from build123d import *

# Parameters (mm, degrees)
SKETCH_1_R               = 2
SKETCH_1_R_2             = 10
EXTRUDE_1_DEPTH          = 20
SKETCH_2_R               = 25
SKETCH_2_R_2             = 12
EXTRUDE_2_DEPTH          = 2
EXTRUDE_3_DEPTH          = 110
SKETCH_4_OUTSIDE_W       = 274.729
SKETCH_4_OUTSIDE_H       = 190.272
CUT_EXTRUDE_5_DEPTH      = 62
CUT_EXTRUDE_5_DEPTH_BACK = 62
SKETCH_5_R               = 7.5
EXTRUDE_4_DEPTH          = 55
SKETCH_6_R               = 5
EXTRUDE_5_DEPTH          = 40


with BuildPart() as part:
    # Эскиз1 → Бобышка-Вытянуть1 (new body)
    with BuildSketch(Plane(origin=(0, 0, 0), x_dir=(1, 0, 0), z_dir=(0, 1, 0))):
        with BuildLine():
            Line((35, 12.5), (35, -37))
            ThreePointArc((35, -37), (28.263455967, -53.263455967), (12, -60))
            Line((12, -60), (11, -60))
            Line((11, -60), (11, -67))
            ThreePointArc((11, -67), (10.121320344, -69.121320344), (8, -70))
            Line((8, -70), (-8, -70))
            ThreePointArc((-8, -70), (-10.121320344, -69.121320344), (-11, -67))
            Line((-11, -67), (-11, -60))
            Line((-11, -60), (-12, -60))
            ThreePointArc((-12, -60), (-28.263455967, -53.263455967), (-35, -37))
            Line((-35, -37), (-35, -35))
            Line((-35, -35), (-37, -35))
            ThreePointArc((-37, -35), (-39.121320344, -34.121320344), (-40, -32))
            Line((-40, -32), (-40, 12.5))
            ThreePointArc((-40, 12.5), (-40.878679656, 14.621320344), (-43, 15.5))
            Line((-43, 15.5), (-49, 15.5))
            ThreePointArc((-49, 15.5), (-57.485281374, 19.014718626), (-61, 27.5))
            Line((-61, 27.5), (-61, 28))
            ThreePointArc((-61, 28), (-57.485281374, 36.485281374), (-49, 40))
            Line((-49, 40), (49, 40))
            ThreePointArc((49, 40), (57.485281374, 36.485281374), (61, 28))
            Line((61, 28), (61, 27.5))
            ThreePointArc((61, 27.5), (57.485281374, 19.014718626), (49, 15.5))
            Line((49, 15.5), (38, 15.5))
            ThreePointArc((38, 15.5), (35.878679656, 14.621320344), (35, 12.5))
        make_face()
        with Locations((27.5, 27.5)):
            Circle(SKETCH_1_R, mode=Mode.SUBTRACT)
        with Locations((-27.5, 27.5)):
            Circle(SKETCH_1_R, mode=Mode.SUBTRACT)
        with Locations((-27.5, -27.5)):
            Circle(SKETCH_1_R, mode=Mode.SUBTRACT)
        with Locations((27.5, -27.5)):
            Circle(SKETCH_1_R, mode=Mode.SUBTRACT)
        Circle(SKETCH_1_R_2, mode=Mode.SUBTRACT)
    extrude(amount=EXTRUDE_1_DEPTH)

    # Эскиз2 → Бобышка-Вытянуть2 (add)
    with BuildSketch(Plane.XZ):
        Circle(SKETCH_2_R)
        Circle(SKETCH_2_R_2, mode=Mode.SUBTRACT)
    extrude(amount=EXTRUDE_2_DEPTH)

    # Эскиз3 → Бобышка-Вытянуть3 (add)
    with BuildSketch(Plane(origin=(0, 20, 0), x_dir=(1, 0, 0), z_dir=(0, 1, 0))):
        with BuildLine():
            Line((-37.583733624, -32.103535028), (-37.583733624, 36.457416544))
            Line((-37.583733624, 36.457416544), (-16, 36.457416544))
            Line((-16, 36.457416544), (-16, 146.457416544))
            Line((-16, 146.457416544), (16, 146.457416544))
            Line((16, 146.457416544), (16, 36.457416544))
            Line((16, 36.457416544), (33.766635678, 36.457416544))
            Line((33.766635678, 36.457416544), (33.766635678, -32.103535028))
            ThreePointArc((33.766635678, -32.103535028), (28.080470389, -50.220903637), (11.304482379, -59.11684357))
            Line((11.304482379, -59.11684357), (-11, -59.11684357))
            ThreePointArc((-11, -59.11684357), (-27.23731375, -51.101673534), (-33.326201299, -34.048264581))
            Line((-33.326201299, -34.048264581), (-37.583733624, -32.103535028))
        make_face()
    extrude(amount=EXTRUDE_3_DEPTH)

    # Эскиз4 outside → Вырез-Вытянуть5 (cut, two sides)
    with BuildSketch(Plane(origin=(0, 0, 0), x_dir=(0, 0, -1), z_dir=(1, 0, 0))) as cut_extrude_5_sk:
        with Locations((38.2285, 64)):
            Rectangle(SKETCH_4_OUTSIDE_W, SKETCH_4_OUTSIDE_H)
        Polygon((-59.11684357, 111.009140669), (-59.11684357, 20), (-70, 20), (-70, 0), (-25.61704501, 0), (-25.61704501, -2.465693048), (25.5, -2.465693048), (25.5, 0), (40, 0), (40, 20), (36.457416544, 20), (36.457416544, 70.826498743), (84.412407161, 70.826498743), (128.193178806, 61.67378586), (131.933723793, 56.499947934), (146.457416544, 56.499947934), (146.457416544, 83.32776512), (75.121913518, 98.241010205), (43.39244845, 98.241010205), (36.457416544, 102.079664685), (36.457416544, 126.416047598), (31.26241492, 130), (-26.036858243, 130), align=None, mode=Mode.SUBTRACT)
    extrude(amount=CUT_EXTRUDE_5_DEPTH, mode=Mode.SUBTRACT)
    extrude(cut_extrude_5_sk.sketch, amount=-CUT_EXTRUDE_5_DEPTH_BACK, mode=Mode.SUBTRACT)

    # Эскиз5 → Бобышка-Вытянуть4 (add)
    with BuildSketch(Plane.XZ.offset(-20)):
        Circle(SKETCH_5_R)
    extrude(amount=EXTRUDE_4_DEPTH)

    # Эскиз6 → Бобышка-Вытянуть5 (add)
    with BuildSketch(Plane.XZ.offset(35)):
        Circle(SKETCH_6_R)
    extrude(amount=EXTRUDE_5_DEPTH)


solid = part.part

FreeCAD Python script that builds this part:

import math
import FreeCAD as App
import Part
import Sketcher
from FreeCAD import Vector
Q = App.Units.Quantity

doc = App.newDocument("Part")
params = doc.addObject("Spreadsheet::Sheet", "Params")
for row, (alias, value) in enumerate([
    ("sketch1_diameter", "4 mm"),
    ("sketch1_diameter2", "20 mm"),
    ("sketch1_radius", "3 mm"),
    ("sketch1_radius2", "12 mm"),
    ("sketch1_radius3", "23 mm"),
    ("pad1_length", "20 mm"),
    ("sketch2_diameter", "50 mm"),
    ("sketch2_diameter2", "24 mm"),
    ("pad2_length", "2 mm"),
    ("sketch3_radius", "25 mm"),
    ("sketch3_width", "32 mm"),
    ("sketch3_height", "110 mm"),
    ("pad3_length", "110 mm"),
    ("sketch4_width", "20 mm"),
    ("sketch4_height", "14.5 mm"),
    ("sketch5_diameter", "15 mm"),
    ("pad4_length", "55 mm"),
    ("sketch6_diameter", "10 mm"),
    ("pad5_length", "40 mm"),
], start=1):
    params.set(f"A{row}", alias)
    params.set(f"B{row}", "=" + value)
    params.setAlias(f"B{row}", alias)

body = doc.addObject("PartDesign::Body", "Body")

sketch1 = doc.addObject("Sketcher::SketchObject", "Sketch")
body.addObject(sketch1)
sketch1.AttachmentSupport = (doc.XZ_Plane, [""])
sketch1.MapMode = "FlatFace"
sketch1.addGeometry([
    Part.LineSegment(Vector(35, 37, 0), Vector(35, -12.5, 0)),
    Part.ArcOfCircle(Part.Circle(Vector(38, -12.5, 0), Vector(0, 0, 1), 3), math.radians(180), math.radians(270)),
    Part.LineSegment(Vector(38, -15.5, 0), Vector(49, -15.5, 0)),
    Part.ArcOfCircle(Part.Circle(Vector(49, -27.5, 0), Vector(0, 0, 1), 12), math.radians(0), math.radians(90)),
    Part.LineSegment(Vector(61, -27.5, 0), Vector(61, -28, 0)),
    Part.ArcOfCircle(Part.Circle(Vector(49, -28, 0), Vector(0, 0, 1), 12), math.radians(-90), math.radians(0)),
    Part.LineSegment(Vector(49, -40, 0), Vector(-49, -40, 0)),
    Part.ArcOfCircle(Part.Circle(Vector(-49, -28, 0), Vector(0, 0, 1), 12), math.radians(-180), math.radians(-90)),
    Part.LineSegment(Vector(-61, -28, 0), Vector(-61, -27.5, 0)),
    Part.ArcOfCircle(Part.Circle(Vector(-49, -27.5, 0), Vector(0, 0, 1), 12), math.radians(90), math.radians(180)),
    Part.LineSegment(Vector(-49, -15.5, 0), Vector(-43, -15.5, 0)),
    Part.ArcOfCircle(Part.Circle(Vector(-43, -12.5, 0), Vector(0, 0, 1), 3), math.radians(-90), math.radians(0)),
    Part.LineSegment(Vector(-40, -12.5, 0), Vector(-40, 32, 0)),
    Part.ArcOfCircle(Part.Circle(Vector(-37, 32, 0), Vector(0, 0, 1), 3), math.radians(90), math.radians(180)),
    Part.LineSegment(Vector(-37, 35, 0), Vector(-35, 35, 0)),
    Part.LineSegment(Vector(-35, 35, 0), Vector(-35, 37, 0)),
    Part.ArcOfCircle(Part.Circle(Vector(-12, 37, 0), Vector(0, 0, 1), 23), math.radians(90), math.radians(180)),
    Part.LineSegment(Vector(-12, 60, 0), Vector(-11, 60, 0)),
    Part.LineSegment(Vector(-11, 60, 0), Vector(-11, 67, 0)),
    Part.ArcOfCircle(Part.Circle(Vector(-8, 67, 0), Vector(0, 0, 1), 3), math.radians(90), math.radians(180)),
    Part.LineSegment(Vector(-8, 70, 0), Vector(8, 70, 0)),
    Part.ArcOfCircle(Part.Circle(Vector(8, 67, 0), Vector(0, 0, 1), 3), math.radians(0), math.radians(90)),
    Part.LineSegment(Vector(11, 67, 0), Vector(11, 60, 0)),
    Part.LineSegment(Vector(11, 60, 0), Vector(12, 60, 0)),
    Part.ArcOfCircle(Part.Circle(Vector(12, 37, 0), Vector(0, 0, 1), 23), math.radians(0), math.radians(90)),
    Part.Circle(Vector(27.5, 27.5, 0), Vector(0, 0, 1), 2),
    Part.Circle(Vector(-27.5, 27.5, 0), Vector(0, 0, 1), 2),
    Part.Circle(Vector(27.5, -27.5, 0), Vector(0, 0, 1), 2),
    Part.Circle(Vector(0, 0, 0), Vector(0, 0, 1), 10),
    Part.Circle(Vector(-27.5, -27.5, 0), Vector(0, 0, 1), 2),
], False)
sketch1.addConstraint([
    Sketcher.Constraint("Tangent", 0, 2, 1, 1),
    Sketcher.Constraint("Tangent", 1, 2, 2, 1),
    Sketcher.Constraint("Tangent", 2, 2, 3, 2),
    Sketcher.Constraint("Tangent", 3, 1, 4, 1),
    Sketcher.Constraint("Tangent", 4, 2, 5, 2),
    Sketcher.Constraint("Tangent", 5, 1, 6, 1),
    Sketcher.Constraint("Tangent", 6, 2, 7, 2),
    Sketcher.Constraint("Tangent", 7, 1, 8, 1),
    Sketcher.Constraint("Tangent", 8, 2, 9, 2),
    Sketcher.Constraint("Tangent", 9, 1, 10, 1),
    Sketcher.Constraint("Tangent", 10, 2, 11, 1),
    Sketcher.Constraint("Tangent", 11, 2, 12, 1),
    Sketcher.Constraint("Tangent", 12, 2, 13, 2),
    Sketcher.Constraint("Tangent", 13, 1, 14, 1),
    Sketcher.Constraint("Coincident", 14, 2, 15, 1),
    Sketcher.Constraint("Tangent", 15, 2, 16, 2),
    Sketcher.Constraint("Tangent", 16, 1, 17, 1),
    Sketcher.Constraint("Coincident", 17, 2, 18, 1),
    Sketcher.Constraint("Tangent", 18, 2, 19, 2),
    Sketcher.Constraint("Tangent", 19, 1, 20, 1),
    Sketcher.Constraint("Tangent", 20, 2, 21, 2),
    Sketcher.Constraint("Tangent", 21, 1, 22, 1),
    Sketcher.Constraint("Coincident", 22, 2, 23, 1),
    Sketcher.Constraint("Tangent", 23, 2, 24, 2),
    Sketcher.Constraint("Tangent", 24, 1, 0, 1),
    Sketcher.Constraint("Vertical", 0),
    Sketcher.Constraint("Horizontal", 2),
    Sketcher.Constraint("Vertical", 4),
    Sketcher.Constraint("Horizontal", 6),
    Sketcher.Constraint("Vertical", 8),
    Sketcher.Constraint("Horizontal", 10),
    Sketcher.Constraint("Vertical", 12),
    Sketcher.Constraint("Horizontal", 14),
    Sketcher.Constraint("Vertical", 15),
    Sketcher.Constraint("Horizontal", 17),
    Sketcher.Constraint("Vertical", 18),
    Sketcher.Constraint("Horizontal", 20),
    Sketcher.Constraint("Vertical", 22),
    Sketcher.Constraint("Horizontal", 23),
    Sketcher.Constraint("Coincident", 28, 3, -1, 1),
    Sketcher.Constraint("Equal", 3, 5),
    Sketcher.Constraint("Equal", 5, 7),
    Sketcher.Constraint("Equal", 7, 9),
    Sketcher.Constraint("Equal", 1, 11),
    Sketcher.Constraint("Equal", 11, 13),
    Sketcher.Constraint("Equal", 13, 19),
    Sketcher.Constraint("Equal", 19, 21),
    Sketcher.Constraint("Equal", 16, 24),
    Sketcher.Constraint("Equal", 25, 26),
    Sketcher.Constraint("Equal", 26, 27),
    Sketcher.Constraint("Equal", 27, 29),
    Sketcher.Constraint("Symmetric", 26, 3, 27, 3, -1, 1),
    Sketcher.Constraint("Symmetric", 25, 3, 29, 3, -1, 1),
    Sketcher.Constraint("Symmetric", 3, 3, 9, 3, -2),
    Sketcher.Constraint("Symmetric", 16, 3, 24, 3, -2),
    Sketcher.Constraint("Symmetric", 25, 3, 26, 3, -2),
    Sketcher.Constraint("Horizontal", 9, 3, 27, 3),
    Sketcher.Constraint("Equal", 17, 23),
    Sketcher.Constraint("Equal", 14, 15),
    Sketcher.Constraint("Diameter", 25, Q("4 mm")),
    Sketcher.Constraint("Diameter", 28, Q("20 mm")),
    Sketcher.Constraint("Radius", 1, Q("3 mm")),
    Sketcher.Constraint("Radius", 3, Q("12 mm")),
    Sketcher.Constraint("Radius", 16, Q("23 mm")),
    Sketcher.Constraint("DistanceX", 2, 1, 2, 2, Q("11 mm")),
    Sketcher.Constraint("DistanceX", 6, 2, 6, 1, Q("98 mm")),
    Sketcher.Constraint("DistanceX", 10, 1, 10, 2, Q("6 mm")),
    Sketcher.Constraint("DistanceX", 17, 1, 17, 2, Q("1 mm")),
    Sketcher.Constraint("DistanceY", 18, 1, 18, 2, Q("7 mm")),
    Sketcher.Constraint("DistanceY", 0, 2, 0, 1, Q("49.5 mm")),
    Sketcher.Constraint("DistanceY", 4, 2, 4, 1, Q("0.5 mm")),
    Sketcher.Constraint("DistanceY", 5, 3, -1, 1, Q("28 mm")),
    Sketcher.Constraint("DistanceX", -1, 1, 25, 3, Q("27.5 mm")),
])
sketch1.setExpression("Constraints[59]", "Params.sketch1_diameter")
sketch1.setExpression("Constraints[60]", "Params.sketch1_diameter2")
sketch1.setExpression("Constraints[61]", "Params.sketch1_radius")
sketch1.setExpression("Constraints[62]", "Params.sketch1_radius2")
sketch1.setExpression("Constraints[63]", "Params.sketch1_radius3")
pad1 = doc.addObject("PartDesign::Pad", "Pad")
body.addObject(pad1)
pad1.Profile = sketch1
pad1.setExpression("Length", "Params.pad1_length")
pad1.Reversed = True

sketch2 = doc.addObject("Sketcher::SketchObject", "Sketch001")
body.addObject(sketch2)
sketch2.AttachmentSupport = (doc.XZ_Plane, [""])
sketch2.MapMode = "FlatFace"
sketch2.addGeometry([
    Part.Circle(Vector(0, 0, 0), Vector(0, 0, 1), 25),
    Part.Circle(Vector(0, 0, 0), Vector(0, 0, 1), 12),
], False)
sketch2.addConstraint([
    Sketcher.Constraint("Coincident", 0, 3, -1, 1),
    Sketcher.Constraint("Coincident", 1, 3, -1, 1),
    Sketcher.Constraint("Diameter", 0, Q("50 mm")),
    Sketcher.Constraint("Diameter", 1, Q("24 mm")),
])
sketch2.setExpression("Constraints[2]", "Params.sketch2_diameter")
sketch2.setExpression("Constraints[3]", "Params.sketch2_diameter2")
pad2 = doc.addObject("PartDesign::Pad", "Pad001")
body.addObject(pad2)
pad2.Profile = sketch2
pad2.setExpression("Length", "Params.pad2_length")

sketch3 = doc.addObject("Sketcher::SketchObject", "Sketch002")
body.addObject(sketch3)
sketch3.AttachmentSupport = (doc.XZ_Plane, [""])
sketch3.MapMode = "FlatFace"
sketch3.AttachmentOffset = App.Placement(Vector(0, 0, -20), App.Rotation())
sketch3.addGeometry([
    Part.LineSegment(Vector(-37.6, -36.5, 0), Vector(-37.6, 32.1, 0)),
    Part.LineSegment(Vector(-37.6, 32.1, 0), Vector(-33.3, 34, 0)),
    Part.ArcOfCircle(Part.Circle(Vector(-9.2, 35.1, 0), Vector(0, 0, 1), 24.1), math.radians(94), math.radians(182)),
    Part.LineSegment(Vector(-11, 59.1, 0), Vector(11.3, 59.1, 0)),
    Part.ArcOfCircle(Part.Circle(Vector(8.9, 34.2, 0), Vector(0, 0, 1), 25), math.radians(-5), math.radians(84)),
    Part.LineSegment(Vector(33.8, 32.1, 0), Vector(33.8, -36.5, 0)),
    Part.LineSegment(Vector(33.8, -36.5, 0), Vector(16, -36.5, 0)),
    Part.LineSegment(Vector(16, -36.5, 0), Vector(16, -146.5, 0)),
    Part.LineSegment(Vector(16, -146.5, 0), Vector(-16, -146.5, 0)),
    Part.LineSegment(Vector(-16, -146.5, 0), Vector(-16, -36.5, 0)),
    Part.LineSegment(Vector(-16, -36.5, 0), Vector(-37.6, -36.5, 0)),
], False)
sketch3.addConstraint([
    Sketcher.Constraint("Coincident", 0, 2, 1, 1),
    Sketcher.Constraint("Coincident", 1, 2, 2, 2),
    Sketcher.Constraint("Coincident", 2, 1, 3, 1),
    Sketcher.Constraint("Coincident", 3, 2, 4, 2),
    Sketcher.Constraint("Coincident", 4, 1, 5, 1),
    Sketcher.Constraint("Coincident", 5, 2, 6, 1),
    Sketcher.Constraint("Coincident", 6, 2, 7, 1),
    Sketcher.Constraint("Coincident", 7, 2, 8, 1),
    Sketcher.Constraint("Coincident", 8, 2, 9, 1),
    Sketcher.Constraint("Coincident", 9, 2, 10, 1),
    Sketcher.Constraint("Coincident", 10, 2, 0, 1),
    Sketcher.Constraint("Vertical", 0),
    Sketcher.Constraint("Horizontal", 3),
    Sketcher.Constraint("Vertical", 5),
    Sketcher.Constraint("Horizontal", 6),
    Sketcher.Constraint("Vertical", 7),
    Sketcher.Constraint("Horizontal", 8),
    Sketcher.Constraint("Vertical", 9),
    Sketcher.Constraint("Horizontal", 10),
    Sketcher.Constraint("Symmetric", 6, 2, 9, 2, -2),
    Sketcher.Constraint("Horizontal", 0, 2, 4, 1),
    Sketcher.Constraint("Radius", 4, Q("25 mm")),
    Sketcher.Constraint("DistanceX", 8, 2, 8, 1, Q("32 mm")),
    Sketcher.Constraint("DistanceY", 7, 2, 7, 1, Q("110 mm")),
    Sketcher.Constraint("DistanceX", 2, 1, -1, 1, Q("11 mm")),
    Sketcher.Constraint("Radius", 2, Q("24.128051 mm")),
    Sketcher.Constraint("DistanceY", 0, 1, 0, 2, Q("68.560952 mm")),
    Sketcher.Constraint("DistanceX", 1, 2, -1, 1, Q("33.326201 mm")),
    Sketcher.Constraint("DistanceX", 3, 1, 3, 2, Q("22.304482 mm")),
    Sketcher.Constraint("DistanceX", 6, 2, 6, 1, Q("17.766636 mm")),
    Sketcher.Constraint("DistanceX", 10, 2, 10, 1, Q("21.583734 mm")),
    Sketcher.Constraint("DistanceX", 2, 3, 4, 3, Q("18.076968 mm")),
    Sketcher.Constraint("DistanceY", 4, 3, 2, 3, Q("0.817749 mm")),
    Sketcher.Constraint("DistanceY", -1, 1, 2, 3, Q("35.054603 mm")),
])
sketch3.setExpression("Constraints[21]", "Params.sketch3_radius")
sketch3.setExpression("Constraints[22]", "Params.sketch3_width")
sketch3.setExpression("Constraints[23]", "Params.sketch3_height")
pad3 = doc.addObject("PartDesign::Pad", "Pad002")
body.addObject(pad3)
pad3.Profile = sketch3
pad3.setExpression("Length", "Params.pad3_length")
pad3.Reversed = True

sketch4 = doc.addObject("Sketcher::SketchObject", "Sketch003")
body.addObject(sketch4)
sketch4.AttachmentSupport = (doc.YZ_Plane, [""])
sketch4.MapMode = "FlatFace"
sketch4.addGeometry([
    Part.LineSegment(Vector(159.1, 99.1, 0), Vector(-31.1, 99.1, 0)),
    Part.LineSegment(Vector(-31.1, 99.1, 0), Vector(-31.1, -175.6, 0)),
    Part.LineSegment(Vector(-31.1, -175.6, 0), Vector(159.1, -175.6, 0)),
    Part.LineSegment(Vector(159.1, -175.6, 0), Vector(159.1, 99.1, 0)),
    Part.LineSegment(Vector(20, 59.1, 0), Vector(111, 59.1, 0)),
    Part.LineSegment(Vector(111, 59.1, 0), Vector(130, 26, 0)),
    Part.LineSegment(Vector(130, 26, 0), Vector(130, -31.3, 0)),
    Part.LineSegment(Vector(130, -31.3, 0), Vector(126.4, -36.5, 0)),
    Part.LineSegment(Vector(126.4, -36.5, 0), Vector(102.1, -36.5, 0)),
    Part.LineSegment(Vector(102.1, -36.5, 0), Vector(98.2, -43.4, 0)),
    Part.LineSegment(Vector(98.2, -43.4, 0), Vector(98.2, -75.1, 0)),
    Part.LineSegment(Vector(98.2, -75.1, 0), Vector(83.3, -146.5, 0)),
    Part.LineSegment(Vector(83.3, -146.5, 0), Vector(56.5, -146.5, 0)),
    Part.LineSegment(Vector(56.5, -146.5, 0), Vector(56.5, -131.9, 0)),
    Part.LineSegment(Vector(56.5, -131.9, 0), Vector(61.7, -128.2, 0)),
    Part.LineSegment(Vector(61.7, -128.2, 0), Vector(70.8, -84.4, 0)),
    Part.LineSegment(Vector(70.8, -84.4, 0), Vector(70.8, -36.5, 0)),
    Part.LineSegment(Vector(70.8, -36.5, 0), Vector(20, -36.5, 0)),
    Part.LineSegment(Vector(20, -36.5, 0), Vector(20, -40, 0)),
    Part.LineSegment(Vector(20, -40, 0), Vector(0, -40, 0)),
    Part.LineSegment(Vector(0, -40, 0), Vector(0, -25.5, 0)),
    Part.LineSegment(Vector(0, -25.5, 0), Vector(-2.5, -25.5, 0)),
    Part.LineSegment(Vector(-2.5, -25.5, 0), Vector(-2.5, 25.6, 0)),
    Part.LineSegment(Vector(-2.5, 25.6, 0), Vector(0, 25.6, 0)),
    Part.LineSegment(Vector(0, 25.6, 0), Vector(0, 70, 0)),
    Part.LineSegment(Vector(0, 70, 0), Vector(20, 70, 0)),
    Part.LineSegment(Vector(20, 70, 0), Vector(20, 59.1, 0)),
], False)
sketch4.addConstraint([
    Sketcher.Constraint("Coincident", 0, 2, 1, 1),
    Sketcher.Constraint("Coincident", 1, 2, 2, 1),
    Sketcher.Constraint("Coincident", 2, 2, 3, 1),
    Sketcher.Constraint("Coincident", 3, 2, 0, 1),
    Sketcher.Constraint("Coincident", 4, 2, 5, 1),
    Sketcher.Constraint("Coincident", 5, 2, 6, 1),
    Sketcher.Constraint("Coincident", 6, 2, 7, 1),
    Sketcher.Constraint("Coincident", 7, 2, 8, 1),
    Sketcher.Constraint("Coincident", 8, 2, 9, 1),
    Sketcher.Constraint("Coincident", 9, 2, 10, 1),
    Sketcher.Constraint("Coincident", 10, 2, 11, 1),
    Sketcher.Constraint("Coincident", 11, 2, 12, 1),
    Sketcher.Constraint("Coincident", 12, 2, 13, 1),
    Sketcher.Constraint("Coincident", 13, 2, 14, 1),
    Sketcher.Constraint("Coincident", 14, 2, 15, 1),
    Sketcher.Constraint("Coincident", 15, 2, 16, 1),
    Sketcher.Constraint("Coincident", 16, 2, 17, 1),
    Sketcher.Constraint("Coincident", 17, 2, 18, 1),
    Sketcher.Constraint("Coincident", 18, 2, 19, 1),
    Sketcher.Constraint("Coincident", 19, 2, 20, 1),
    Sketcher.Constraint("Coincident", 20, 2, 21, 1),
    Sketcher.Constraint("Coincident", 21, 2, 22, 1),
    Sketcher.Constraint("Coincident", 22, 2, 23, 1),
    Sketcher.Constraint("Coincident", 23, 2, 24, 1),
    Sketcher.Constraint("Coincident", 24, 2, 25, 1),
    Sketcher.Constraint("Coincident", 25, 2, 26, 1),
    Sketcher.Constraint("Coincident", 26, 2, 4, 1),
    Sketcher.Constraint("Horizontal", 0),
    Sketcher.Constraint("Vertical", 1),
    Sketcher.Constraint("Horizontal", 2),
    Sketcher.Constraint("Vertical", 3),
    Sketcher.Constraint("Horizontal", 4),
    Sketcher.Constraint("Vertical", 6),
    Sketcher.Constraint("Horizontal", 8),
    Sketcher.Constraint("Vertical", 10),
    Sketcher.Constraint("Horizontal", 12),
    Sketcher.Constraint("Vertical", 13),
    Sketcher.Constraint("Vertical", 16),
    Sketcher.Constraint("Horizontal", 17),
    Sketcher.Constraint("Vertical", 18),
    Sketcher.Constraint("Horizontal", 19),
    Sketcher.Constraint("Vertical", 20),
    Sketcher.Constraint("Horizontal", 21),
    Sketcher.Constraint("Vertical", 22),
    Sketcher.Constraint("Horizontal", 23),
    Sketcher.Constraint("Vertical", 24),
    Sketcher.Constraint("Horizontal", 25),
    Sketcher.Constraint("Vertical", 26),
    Sketcher.Constraint("PointOnObject", 19, 2, -2),
    Sketcher.Constraint("PointOnObject", 23, 2, -2),
    Sketcher.Constraint("Parallel", 11, 15),
    Sketcher.Constraint("Horizontal", 8, 2, 16, 2),
    Sketcher.Constraint("Vertical", 18, 2, 25, 2),
    Sketcher.Constraint("DistanceX", 19, 2, 19, 1, Q("20 mm")),
    Sketcher.Constraint("DistanceY", 20, 1, 20, 2, Q("14.5 mm")),
    Sketcher.Constraint("DistanceX", -1, 1, 5, 2, Q("130 mm")),
    Sketcher.Constraint("DistanceY", 18, 2, -1, 1, Q("40 mm")),
    Sketcher.Constraint("DistanceY", -1, 1, 24, 2, Q("70 mm")),
    Sketcher.Constraint("DistanceY", 11, 2, 8, 2, Q("110 mm")),
    Sketcher.Constraint("DistanceX", 0, 2, 0, 1, Q("190.272 mm")),
    Sketcher.Constraint("DistanceY", 1, 2, 1, 1, Q("274.729 mm")),
    Sketcher.Constraint("DistanceX", 17, 2, 17, 1, Q("50.826499 mm")),
    Sketcher.Constraint("DistanceX", 0, 2, -1, 1, Q("31.136 mm")),
    Sketcher.Constraint("DistanceY", -1, 1, 0, 2, Q("99.136 mm")),
    Sketcher.Constraint("DistanceY", 7, 2, 6, 2, Q("5.195002 mm")),
    Sketcher.Constraint("Distance", 11, Q("72.877698 mm")),
    Sketcher.Constraint("DistanceX", 4, 1, 4, 2, Q("91.009141 mm")),
    Sketcher.Constraint("DistanceY", 16, 1, 16, 2, Q("47.954991 mm")),
    Sketcher.Constraint("DistanceY", 10, 2, 6, 2, Q("43.859499 mm")),
    Sketcher.Constraint("DistanceX", 11, 2, 8, 2, Q("18.7519 mm")),
    Sketcher.Constraint("DistanceY", 23, 2, 26, 2, Q("33.499799 mm")),
    Sketcher.Constraint("Distance", 5, Q("38.143652 mm")),
    Sketcher.Constraint("Distance", 7, Q("6.31132 mm")),
    Sketcher.Constraint("DistanceX", 8, 2, 8, 1, Q("24.336383 mm")),
    Sketcher.Constraint("DistanceX", 12, 2, 12, 1, Q("26.827817 mm")),
    Sketcher.Constraint("DistanceX", 21, 2, 21, 1, Q("2.465693 mm")),
    Sketcher.Constraint("DistanceY", 6, 2, 6, 1, Q("57.299273 mm")),
    Sketcher.Constraint("DistanceY", 10, 2, 10, 1, Q("31.729465 mm")),
    Sketcher.Constraint("DistanceY", 13, 1, 13, 2, Q("14.523693 mm")),
    Sketcher.Constraint("DistanceY", 18, 2, 18, 1, Q("3.542583 mm")),
    Sketcher.Constraint("DistanceY", 14, 2, -1, 1, Q("128.193179 mm")),
])
sketch4.setExpression("Constraints[53]", "Params.sketch4_width")
sketch4.setExpression("Constraints[54]", "Params.sketch4_height")
pocket1 = doc.addObject("PartDesign::Pocket", "Pocket")
body.addObject(pocket1)
pocket1.Profile = sketch4
pocket1.Type = "ThroughAll"
pocket1.Midplane = True

sketch5 = doc.addObject("Sketcher::SketchObject", "Sketch004")
body.addObject(sketch5)
sketch5.AttachmentSupport = (doc.XZ_Plane, [""])
sketch5.MapMode = "FlatFace"
sketch5.AttachmentOffset = App.Placement(Vector(0, 0, -20), App.Rotation())
sketch5.addGeometry(Part.Circle(Vector(0, 0, 0), Vector(0, 0, 1), 8), False)
sketch5.addConstraint([
    Sketcher.Constraint("Coincident", 0, 3, -1, 1),
    Sketcher.Constraint("Diameter", 0, Q("15 mm")),
])
sketch5.setExpression("Constraints[1]", "Params.sketch5_diameter")
pad4 = doc.addObject("PartDesign::Pad", "Pad003")
body.addObject(pad4)
pad4.Profile = sketch5
pad4.setExpression("Length", "Params.pad4_length")

sketch6 = doc.addObject("Sketcher::SketchObject", "Sketch005")
body.addObject(sketch6)
sketch6.AttachmentSupport = (doc.XZ_Plane, [""])
sketch6.MapMode = "FlatFace"
sketch6.AttachmentOffset = App.Placement(Vector(0, 0, 35), App.Rotation())
sketch6.addGeometry(Part.Circle(Vector(0, 0, 0), Vector(0, 0, 1), 5), False)
sketch6.addConstraint([
    Sketcher.Constraint("Coincident", 0, 3, -1, 1),
    Sketcher.Constraint("Diameter", 0, Q("10 mm")),
])
sketch6.setExpression("Constraints[1]", "Params.sketch6_diameter")
pad5 = doc.addObject("PartDesign::Pad", "Pad004")
body.addObject(pad5)
pad5.Profile = sketch6
pad5.setExpression("Length", "Params.pad5_length")

doc.recompute()
